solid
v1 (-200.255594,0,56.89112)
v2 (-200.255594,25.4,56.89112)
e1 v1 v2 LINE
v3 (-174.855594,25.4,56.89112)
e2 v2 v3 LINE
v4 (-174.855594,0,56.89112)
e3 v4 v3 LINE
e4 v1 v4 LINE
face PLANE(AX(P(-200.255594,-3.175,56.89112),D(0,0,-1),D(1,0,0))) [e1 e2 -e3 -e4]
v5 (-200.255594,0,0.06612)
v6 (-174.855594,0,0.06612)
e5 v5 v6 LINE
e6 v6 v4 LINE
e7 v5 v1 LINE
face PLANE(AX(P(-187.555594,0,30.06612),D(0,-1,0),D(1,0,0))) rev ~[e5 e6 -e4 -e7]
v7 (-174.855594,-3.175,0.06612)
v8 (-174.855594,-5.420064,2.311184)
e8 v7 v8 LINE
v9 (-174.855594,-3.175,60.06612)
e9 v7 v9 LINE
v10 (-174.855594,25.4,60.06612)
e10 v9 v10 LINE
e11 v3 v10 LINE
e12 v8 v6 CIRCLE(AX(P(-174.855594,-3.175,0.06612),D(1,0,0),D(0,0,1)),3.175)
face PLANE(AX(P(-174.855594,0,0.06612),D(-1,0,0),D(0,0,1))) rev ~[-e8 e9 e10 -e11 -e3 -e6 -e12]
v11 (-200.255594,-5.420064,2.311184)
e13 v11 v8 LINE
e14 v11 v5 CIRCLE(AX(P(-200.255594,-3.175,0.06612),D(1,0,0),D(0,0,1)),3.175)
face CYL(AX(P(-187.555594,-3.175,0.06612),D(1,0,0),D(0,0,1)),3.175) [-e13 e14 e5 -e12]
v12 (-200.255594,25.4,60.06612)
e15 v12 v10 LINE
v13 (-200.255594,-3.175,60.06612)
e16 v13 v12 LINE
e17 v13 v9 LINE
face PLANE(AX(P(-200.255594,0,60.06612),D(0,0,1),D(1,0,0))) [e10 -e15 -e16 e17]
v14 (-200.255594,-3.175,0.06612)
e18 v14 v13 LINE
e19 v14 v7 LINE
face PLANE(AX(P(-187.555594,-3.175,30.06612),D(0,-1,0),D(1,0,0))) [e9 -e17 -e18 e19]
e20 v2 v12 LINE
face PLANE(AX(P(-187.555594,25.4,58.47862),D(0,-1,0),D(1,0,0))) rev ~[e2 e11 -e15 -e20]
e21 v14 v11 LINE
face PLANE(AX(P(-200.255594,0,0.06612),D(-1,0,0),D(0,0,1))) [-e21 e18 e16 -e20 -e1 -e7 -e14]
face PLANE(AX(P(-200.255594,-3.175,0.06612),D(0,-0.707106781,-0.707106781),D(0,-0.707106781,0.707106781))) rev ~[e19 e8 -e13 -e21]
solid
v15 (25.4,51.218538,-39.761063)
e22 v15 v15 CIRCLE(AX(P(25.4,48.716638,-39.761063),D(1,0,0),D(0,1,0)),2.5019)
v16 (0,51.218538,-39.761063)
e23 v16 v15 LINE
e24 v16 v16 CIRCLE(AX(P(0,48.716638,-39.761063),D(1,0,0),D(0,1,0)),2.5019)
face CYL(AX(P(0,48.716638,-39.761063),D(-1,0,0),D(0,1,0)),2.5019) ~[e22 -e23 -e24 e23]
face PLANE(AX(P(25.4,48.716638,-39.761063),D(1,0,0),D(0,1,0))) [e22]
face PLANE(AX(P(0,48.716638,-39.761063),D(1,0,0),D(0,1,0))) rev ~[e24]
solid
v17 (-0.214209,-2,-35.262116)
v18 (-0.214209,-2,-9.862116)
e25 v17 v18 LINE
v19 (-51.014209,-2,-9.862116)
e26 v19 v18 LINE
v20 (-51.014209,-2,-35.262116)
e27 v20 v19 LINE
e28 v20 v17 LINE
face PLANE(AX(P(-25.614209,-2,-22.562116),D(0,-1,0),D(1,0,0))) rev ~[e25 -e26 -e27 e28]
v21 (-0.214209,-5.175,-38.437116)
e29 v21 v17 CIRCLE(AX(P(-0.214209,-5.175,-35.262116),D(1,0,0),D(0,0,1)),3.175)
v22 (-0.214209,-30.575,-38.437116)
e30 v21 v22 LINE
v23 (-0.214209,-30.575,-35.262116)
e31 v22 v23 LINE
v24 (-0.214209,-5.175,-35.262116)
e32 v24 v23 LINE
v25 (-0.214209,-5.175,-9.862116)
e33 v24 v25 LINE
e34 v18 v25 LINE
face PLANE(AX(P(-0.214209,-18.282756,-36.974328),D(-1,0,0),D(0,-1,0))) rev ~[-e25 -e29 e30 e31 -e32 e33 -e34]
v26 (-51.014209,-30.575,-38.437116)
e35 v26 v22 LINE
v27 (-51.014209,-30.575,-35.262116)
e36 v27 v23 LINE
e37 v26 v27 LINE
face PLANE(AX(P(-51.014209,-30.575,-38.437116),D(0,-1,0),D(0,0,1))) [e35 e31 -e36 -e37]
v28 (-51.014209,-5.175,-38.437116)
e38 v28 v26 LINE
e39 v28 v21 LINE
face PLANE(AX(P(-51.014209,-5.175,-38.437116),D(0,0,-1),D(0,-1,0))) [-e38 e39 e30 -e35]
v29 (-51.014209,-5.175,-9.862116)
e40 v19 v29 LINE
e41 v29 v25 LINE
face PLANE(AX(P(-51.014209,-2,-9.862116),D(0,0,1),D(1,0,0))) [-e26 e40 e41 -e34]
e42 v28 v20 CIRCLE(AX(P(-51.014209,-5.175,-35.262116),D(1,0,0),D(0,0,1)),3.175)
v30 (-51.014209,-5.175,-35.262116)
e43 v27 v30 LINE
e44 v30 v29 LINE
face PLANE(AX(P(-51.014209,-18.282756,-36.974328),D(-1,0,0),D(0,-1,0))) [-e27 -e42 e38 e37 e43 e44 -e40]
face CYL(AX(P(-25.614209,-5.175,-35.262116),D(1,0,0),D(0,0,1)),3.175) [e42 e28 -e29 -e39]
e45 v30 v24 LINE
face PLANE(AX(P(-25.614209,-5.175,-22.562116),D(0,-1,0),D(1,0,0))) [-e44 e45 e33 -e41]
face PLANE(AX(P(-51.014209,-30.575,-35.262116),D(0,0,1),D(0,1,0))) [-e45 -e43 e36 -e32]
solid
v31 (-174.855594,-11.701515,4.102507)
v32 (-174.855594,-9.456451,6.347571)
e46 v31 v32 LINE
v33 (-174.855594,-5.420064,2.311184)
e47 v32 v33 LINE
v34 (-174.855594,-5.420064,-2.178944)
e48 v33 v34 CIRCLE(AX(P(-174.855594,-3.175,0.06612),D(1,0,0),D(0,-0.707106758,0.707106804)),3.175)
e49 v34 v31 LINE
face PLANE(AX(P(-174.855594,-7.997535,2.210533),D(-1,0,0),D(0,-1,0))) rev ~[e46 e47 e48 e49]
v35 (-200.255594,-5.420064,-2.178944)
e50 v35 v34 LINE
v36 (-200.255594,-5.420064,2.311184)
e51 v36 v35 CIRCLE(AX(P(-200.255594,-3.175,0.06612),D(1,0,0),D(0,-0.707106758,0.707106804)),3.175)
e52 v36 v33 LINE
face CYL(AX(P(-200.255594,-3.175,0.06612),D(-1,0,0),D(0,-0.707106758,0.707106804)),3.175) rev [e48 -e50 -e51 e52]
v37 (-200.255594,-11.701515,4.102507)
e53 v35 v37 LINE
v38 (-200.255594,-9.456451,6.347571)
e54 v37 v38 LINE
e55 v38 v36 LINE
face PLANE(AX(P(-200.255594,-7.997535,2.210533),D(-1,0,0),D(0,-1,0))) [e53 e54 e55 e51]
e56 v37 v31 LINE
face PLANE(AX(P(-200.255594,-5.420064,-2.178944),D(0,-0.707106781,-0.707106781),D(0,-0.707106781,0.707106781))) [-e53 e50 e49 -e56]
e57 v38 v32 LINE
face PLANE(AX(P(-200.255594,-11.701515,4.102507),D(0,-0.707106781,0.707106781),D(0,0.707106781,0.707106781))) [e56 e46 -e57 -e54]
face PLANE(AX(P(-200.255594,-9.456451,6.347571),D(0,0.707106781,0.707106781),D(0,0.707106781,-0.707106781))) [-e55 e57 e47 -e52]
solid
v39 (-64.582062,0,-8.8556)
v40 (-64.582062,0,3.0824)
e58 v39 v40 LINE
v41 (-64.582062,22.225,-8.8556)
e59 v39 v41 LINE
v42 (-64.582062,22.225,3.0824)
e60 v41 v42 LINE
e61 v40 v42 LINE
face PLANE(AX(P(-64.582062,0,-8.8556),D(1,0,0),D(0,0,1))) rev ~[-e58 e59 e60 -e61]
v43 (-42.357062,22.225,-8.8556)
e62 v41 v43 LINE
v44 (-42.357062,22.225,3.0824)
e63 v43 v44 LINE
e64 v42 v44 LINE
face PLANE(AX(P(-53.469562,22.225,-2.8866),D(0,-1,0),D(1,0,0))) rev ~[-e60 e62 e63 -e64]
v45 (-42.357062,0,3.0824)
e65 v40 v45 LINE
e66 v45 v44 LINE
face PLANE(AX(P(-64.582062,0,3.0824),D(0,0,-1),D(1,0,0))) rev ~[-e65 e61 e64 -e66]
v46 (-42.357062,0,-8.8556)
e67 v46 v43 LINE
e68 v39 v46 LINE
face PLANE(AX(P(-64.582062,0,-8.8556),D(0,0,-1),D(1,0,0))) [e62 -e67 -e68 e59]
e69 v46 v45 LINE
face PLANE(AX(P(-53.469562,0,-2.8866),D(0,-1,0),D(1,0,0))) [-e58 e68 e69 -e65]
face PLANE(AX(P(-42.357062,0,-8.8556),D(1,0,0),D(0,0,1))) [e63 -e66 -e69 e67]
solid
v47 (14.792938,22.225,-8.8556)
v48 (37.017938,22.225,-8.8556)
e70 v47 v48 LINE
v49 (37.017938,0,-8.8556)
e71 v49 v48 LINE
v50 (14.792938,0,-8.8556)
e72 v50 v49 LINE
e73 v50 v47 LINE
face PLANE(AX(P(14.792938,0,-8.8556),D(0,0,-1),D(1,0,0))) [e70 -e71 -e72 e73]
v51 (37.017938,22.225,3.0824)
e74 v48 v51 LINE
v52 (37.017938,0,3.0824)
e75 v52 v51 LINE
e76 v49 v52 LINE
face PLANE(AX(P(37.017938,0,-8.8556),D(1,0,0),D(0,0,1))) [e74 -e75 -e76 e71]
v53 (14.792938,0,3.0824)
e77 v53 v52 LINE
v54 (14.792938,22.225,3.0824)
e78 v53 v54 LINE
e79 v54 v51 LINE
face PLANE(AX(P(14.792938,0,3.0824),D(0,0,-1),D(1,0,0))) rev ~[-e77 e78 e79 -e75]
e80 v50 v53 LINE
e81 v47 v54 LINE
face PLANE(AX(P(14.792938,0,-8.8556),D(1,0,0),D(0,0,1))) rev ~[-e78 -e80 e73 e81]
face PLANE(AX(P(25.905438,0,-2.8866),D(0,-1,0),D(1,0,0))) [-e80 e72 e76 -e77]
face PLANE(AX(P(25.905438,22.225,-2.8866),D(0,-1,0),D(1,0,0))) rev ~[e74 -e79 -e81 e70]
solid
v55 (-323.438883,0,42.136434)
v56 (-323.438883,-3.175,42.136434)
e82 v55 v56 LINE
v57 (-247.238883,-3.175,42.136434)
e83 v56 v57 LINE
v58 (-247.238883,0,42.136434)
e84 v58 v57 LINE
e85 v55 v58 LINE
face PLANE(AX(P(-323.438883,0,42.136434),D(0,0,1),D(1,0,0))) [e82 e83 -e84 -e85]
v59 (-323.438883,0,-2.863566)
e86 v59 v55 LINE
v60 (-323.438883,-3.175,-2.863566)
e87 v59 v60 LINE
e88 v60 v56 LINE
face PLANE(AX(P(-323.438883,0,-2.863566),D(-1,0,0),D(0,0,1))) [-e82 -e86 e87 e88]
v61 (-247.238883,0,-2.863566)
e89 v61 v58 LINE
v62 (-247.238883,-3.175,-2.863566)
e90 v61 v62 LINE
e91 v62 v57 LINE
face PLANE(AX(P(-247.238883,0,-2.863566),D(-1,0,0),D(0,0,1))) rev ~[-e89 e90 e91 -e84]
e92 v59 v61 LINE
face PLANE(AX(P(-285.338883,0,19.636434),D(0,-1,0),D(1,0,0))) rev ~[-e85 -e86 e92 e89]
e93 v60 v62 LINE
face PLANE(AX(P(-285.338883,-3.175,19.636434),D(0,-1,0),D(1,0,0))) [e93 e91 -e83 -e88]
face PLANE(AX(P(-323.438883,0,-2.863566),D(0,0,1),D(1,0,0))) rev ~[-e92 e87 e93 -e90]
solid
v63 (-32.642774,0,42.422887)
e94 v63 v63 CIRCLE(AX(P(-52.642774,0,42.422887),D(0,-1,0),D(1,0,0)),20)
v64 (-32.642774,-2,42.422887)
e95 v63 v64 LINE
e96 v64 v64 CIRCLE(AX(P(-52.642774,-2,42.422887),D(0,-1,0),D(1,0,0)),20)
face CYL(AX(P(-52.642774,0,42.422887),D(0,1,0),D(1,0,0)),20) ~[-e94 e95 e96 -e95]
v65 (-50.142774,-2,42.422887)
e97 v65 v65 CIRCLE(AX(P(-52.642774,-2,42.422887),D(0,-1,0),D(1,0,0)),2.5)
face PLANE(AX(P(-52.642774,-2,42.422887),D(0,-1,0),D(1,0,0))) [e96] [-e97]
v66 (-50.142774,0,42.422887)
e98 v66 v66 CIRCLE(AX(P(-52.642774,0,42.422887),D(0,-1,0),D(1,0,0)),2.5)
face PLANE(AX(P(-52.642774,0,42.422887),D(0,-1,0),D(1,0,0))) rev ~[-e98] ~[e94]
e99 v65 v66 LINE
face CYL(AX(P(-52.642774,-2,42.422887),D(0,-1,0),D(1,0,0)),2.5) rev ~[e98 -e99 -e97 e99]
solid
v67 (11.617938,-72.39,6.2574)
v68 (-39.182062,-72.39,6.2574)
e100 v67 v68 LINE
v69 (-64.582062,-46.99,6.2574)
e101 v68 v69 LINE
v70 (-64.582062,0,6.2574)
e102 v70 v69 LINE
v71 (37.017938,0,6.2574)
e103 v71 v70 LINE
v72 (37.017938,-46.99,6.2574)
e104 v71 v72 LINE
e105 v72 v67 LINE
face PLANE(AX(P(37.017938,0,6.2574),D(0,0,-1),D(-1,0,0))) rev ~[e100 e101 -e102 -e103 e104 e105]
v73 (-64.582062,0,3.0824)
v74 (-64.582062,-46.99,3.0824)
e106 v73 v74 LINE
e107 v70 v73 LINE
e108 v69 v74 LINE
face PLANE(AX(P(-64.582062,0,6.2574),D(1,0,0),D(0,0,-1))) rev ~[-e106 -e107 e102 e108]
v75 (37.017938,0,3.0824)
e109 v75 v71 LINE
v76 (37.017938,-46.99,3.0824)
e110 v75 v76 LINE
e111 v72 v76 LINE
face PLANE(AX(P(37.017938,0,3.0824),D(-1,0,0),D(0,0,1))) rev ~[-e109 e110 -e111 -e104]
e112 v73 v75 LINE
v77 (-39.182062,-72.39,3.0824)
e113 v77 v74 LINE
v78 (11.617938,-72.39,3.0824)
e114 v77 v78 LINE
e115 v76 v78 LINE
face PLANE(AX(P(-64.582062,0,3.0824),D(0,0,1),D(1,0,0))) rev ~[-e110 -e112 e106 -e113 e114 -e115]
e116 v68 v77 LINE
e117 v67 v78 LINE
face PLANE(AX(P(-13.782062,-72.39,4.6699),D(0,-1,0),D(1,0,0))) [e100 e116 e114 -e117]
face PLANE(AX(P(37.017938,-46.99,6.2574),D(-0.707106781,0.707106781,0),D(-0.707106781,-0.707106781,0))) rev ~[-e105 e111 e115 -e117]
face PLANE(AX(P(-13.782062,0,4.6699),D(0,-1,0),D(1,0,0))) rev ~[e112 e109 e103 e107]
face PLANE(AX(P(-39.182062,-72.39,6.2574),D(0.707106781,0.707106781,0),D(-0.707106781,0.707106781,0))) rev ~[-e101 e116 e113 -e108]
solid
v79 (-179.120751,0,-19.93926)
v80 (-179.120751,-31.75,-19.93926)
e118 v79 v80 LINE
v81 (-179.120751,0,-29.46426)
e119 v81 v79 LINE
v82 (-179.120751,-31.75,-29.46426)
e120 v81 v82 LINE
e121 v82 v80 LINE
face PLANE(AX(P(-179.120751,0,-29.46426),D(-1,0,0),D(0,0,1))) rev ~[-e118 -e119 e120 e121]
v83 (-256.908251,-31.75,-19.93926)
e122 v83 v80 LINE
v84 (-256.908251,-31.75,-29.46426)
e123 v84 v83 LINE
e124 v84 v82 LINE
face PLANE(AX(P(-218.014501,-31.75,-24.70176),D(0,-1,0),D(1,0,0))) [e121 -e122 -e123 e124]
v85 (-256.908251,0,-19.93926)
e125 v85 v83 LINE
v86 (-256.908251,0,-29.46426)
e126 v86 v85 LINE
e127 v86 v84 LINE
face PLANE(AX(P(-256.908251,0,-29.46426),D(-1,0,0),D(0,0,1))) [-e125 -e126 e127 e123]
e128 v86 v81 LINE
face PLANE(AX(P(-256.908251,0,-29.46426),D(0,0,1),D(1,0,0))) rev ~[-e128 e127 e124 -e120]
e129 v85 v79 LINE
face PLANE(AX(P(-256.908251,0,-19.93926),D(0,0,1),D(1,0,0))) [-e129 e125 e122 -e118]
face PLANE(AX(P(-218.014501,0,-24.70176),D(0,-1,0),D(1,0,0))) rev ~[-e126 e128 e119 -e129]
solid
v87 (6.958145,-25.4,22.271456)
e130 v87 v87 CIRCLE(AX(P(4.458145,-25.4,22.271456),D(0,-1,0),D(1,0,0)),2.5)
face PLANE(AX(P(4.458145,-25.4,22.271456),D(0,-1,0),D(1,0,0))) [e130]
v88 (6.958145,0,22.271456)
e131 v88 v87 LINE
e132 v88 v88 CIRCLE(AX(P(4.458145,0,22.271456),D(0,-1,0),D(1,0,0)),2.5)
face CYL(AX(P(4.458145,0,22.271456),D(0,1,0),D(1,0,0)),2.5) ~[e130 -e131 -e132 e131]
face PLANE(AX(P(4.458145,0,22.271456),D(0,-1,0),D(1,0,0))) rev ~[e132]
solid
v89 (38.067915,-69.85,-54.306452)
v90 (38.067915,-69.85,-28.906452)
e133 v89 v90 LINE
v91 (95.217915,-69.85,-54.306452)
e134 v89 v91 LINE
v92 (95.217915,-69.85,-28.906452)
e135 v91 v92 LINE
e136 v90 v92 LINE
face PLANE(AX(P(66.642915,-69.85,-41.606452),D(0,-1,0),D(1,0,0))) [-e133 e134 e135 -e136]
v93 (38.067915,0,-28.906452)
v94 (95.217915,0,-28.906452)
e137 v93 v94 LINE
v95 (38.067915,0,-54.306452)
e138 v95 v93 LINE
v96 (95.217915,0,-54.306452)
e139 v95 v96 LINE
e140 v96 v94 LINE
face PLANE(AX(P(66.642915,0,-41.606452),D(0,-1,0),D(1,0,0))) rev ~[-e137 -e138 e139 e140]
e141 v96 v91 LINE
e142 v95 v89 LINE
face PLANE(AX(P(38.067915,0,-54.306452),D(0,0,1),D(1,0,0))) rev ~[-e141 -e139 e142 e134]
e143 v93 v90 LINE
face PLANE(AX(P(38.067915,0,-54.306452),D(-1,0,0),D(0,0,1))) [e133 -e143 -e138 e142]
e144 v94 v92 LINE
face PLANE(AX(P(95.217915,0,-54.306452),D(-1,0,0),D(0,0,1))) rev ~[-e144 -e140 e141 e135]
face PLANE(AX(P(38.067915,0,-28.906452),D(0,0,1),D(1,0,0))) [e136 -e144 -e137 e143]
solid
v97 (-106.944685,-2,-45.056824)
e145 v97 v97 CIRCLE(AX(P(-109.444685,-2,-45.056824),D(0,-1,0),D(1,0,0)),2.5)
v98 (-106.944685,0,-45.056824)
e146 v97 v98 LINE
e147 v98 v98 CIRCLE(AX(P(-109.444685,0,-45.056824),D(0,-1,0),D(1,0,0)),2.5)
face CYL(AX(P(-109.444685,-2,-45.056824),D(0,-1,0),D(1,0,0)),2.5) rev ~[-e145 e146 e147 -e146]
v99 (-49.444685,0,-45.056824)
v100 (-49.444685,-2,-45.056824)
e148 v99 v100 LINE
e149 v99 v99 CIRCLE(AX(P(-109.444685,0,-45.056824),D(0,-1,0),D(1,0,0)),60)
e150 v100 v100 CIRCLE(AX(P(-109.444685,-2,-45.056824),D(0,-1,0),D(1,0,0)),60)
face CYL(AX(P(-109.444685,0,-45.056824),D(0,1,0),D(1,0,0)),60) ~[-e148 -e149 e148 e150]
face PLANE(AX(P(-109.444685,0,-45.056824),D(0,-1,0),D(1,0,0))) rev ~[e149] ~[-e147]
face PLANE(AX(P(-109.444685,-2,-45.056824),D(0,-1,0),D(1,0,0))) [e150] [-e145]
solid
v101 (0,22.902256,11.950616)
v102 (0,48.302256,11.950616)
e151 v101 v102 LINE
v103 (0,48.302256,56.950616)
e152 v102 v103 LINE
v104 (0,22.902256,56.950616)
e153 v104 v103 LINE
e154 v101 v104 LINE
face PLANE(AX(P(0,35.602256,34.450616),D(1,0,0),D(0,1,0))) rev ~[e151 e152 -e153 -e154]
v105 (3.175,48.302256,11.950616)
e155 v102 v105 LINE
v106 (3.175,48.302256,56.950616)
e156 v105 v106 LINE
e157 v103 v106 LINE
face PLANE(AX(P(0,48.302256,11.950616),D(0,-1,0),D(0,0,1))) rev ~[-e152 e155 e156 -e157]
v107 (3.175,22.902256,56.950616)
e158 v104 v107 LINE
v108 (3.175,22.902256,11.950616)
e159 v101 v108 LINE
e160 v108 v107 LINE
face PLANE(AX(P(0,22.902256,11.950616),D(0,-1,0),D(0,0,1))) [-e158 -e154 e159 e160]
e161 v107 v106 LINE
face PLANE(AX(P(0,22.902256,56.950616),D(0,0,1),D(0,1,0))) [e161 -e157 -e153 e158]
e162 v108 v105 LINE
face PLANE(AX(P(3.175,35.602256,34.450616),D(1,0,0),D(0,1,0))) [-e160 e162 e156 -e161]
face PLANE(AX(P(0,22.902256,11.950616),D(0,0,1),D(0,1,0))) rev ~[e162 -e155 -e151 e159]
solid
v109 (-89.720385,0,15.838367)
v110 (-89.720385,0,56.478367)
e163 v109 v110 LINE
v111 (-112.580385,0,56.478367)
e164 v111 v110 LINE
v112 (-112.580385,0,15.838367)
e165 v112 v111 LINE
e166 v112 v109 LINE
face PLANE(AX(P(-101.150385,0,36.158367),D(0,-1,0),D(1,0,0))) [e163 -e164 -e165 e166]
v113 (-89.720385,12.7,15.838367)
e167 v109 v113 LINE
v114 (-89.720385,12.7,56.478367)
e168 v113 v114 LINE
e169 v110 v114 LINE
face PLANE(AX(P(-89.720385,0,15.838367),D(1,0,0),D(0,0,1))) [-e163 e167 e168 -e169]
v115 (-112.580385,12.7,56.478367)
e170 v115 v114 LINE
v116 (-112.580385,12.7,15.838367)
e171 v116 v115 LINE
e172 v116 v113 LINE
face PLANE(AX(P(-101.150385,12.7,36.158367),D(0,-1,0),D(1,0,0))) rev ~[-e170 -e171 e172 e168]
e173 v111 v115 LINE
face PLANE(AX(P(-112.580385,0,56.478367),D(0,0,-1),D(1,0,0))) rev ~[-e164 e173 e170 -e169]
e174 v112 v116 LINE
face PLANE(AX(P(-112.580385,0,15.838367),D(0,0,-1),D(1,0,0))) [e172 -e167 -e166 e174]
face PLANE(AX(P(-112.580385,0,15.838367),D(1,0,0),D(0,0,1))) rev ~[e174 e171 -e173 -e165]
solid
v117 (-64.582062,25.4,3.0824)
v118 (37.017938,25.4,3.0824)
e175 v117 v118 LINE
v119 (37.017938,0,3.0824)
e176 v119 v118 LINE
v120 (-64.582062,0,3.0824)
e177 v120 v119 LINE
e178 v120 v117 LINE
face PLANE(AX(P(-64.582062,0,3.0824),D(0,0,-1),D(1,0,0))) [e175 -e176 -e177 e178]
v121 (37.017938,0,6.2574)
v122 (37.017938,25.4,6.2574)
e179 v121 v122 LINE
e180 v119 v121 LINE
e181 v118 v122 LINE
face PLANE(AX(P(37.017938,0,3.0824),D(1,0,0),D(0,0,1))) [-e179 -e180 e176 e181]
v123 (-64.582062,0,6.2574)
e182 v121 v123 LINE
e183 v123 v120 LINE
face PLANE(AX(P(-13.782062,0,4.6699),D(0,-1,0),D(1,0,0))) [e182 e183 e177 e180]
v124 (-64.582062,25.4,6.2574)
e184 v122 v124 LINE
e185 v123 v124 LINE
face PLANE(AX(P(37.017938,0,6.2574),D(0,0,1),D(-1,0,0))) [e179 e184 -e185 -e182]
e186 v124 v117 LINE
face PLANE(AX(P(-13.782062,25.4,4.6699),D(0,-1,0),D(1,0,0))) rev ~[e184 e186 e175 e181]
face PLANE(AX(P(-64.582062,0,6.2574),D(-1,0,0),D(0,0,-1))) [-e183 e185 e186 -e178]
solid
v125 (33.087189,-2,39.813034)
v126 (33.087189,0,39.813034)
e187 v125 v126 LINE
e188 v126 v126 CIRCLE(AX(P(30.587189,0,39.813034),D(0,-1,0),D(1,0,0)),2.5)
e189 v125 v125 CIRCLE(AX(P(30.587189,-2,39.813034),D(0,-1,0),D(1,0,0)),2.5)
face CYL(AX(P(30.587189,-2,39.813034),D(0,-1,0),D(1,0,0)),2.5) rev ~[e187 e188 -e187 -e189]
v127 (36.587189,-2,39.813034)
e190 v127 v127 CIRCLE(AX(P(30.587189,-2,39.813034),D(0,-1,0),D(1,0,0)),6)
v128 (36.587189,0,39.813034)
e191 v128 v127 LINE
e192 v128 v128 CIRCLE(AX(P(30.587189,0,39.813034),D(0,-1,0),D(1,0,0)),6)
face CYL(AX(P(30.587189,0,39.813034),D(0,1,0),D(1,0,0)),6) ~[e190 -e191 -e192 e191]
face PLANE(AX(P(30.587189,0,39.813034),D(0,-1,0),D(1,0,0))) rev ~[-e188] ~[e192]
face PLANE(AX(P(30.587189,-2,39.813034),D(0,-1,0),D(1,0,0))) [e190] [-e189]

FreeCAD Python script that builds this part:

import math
import FreeCAD as App
import Part
import Sketcher
Q = App.Units.Quantity


def add_polygon(sketch, points):
    """Adds a closed chain of lines whose ends are joined by coincident constraints."""
    first, n = sketch.GeometryCount, len(points)
    for a, b in zip(points, points[1:] + points[:1]):
        sketch.addGeometry(Part.LineSegment(App.Vector(*a, 0), App.Vector(*b, 0)), False)
    for i in range(n):
        sketch.addConstraint(Sketcher.Constraint("Coincident", first + i, 2, first + (i + 1) % n, 1))

doc = App.newDocument("Part")
body = doc.addObject("PartDesign::Body", "Body")

sketch1 = body.newObject("Sketcher::SketchObject", "Sketch")
sketch1.AttachmentSupport = (doc.getObject("XZ_Plane"), [""])
sketch1.MapMode = "FlatFace"
add_polygon(sketch1, [(-65, 3), (-65, -9), (-42, -9), (-42, 3)])
sketch1.addConstraint([
    Sketcher.Constraint("Vertical", 0),
    Sketcher.Constraint("Horizontal", 1),
    Sketcher.Constraint("Vertical", 2),
    Sketcher.Constraint("Horizontal", 3),
    Sketcher.Constraint("DistanceY", 0, 2, 0, 1, Q("0.47 in")),
    Sketcher.Constraint("DistanceX", 1, 1, 1, 2, Q("0.875 in")),
    Sketcher.Constraint("DistanceY", 0, 2, -1, 1, 8.8556),
    Sketcher.Constraint("DistanceX", 0, 2, -1, 1, 64.582062),
])
pad1 = body.newObject("PartDesign::Pad", "Pad")
pad1.Profile = sketch1
pad1.Length = Q("0.875 in")
pad1.Reversed = True
body2 = doc.addObject("PartDesign::Body", "Body001")

sketch2 = body2.newObject("Sketcher::SketchObject", "Sketch001")
sketch2.AttachmentSupport = (doc.getObject("XZ_Plane001"), [""])
sketch2.MapMode = "FlatFace"
add_polygon(sketch2, [(15, 3), (15, -9), (37, -9), (37, 3)])
sketch2.addConstraint([
    Sketcher.Constraint("Vertical", 0),
    Sketcher.Constraint("Horizontal", 1),
    Sketcher.Constraint("Vertical", 2),
    Sketcher.Constraint("Horizontal", 3),
    Sketcher.Constraint("DistanceY", 0, 2, 0, 1, Q("0.47 in")),
    Sketcher.Constraint("DistanceX", 1, 1, 1, 2, Q("0.875 in")),
    Sketcher.Constraint("DistanceY", 0, 2, -1, 1, 8.8556),
    Sketcher.Constraint("DistanceX", -1, 1, 0, 2, 14.792938),
])
pad2 = body2.newObject("PartDesign::Pad", "Pad001")
pad2.Profile = sketch2
pad2.Length = Q("0.875 in")
pad2.Reversed = True
body3 = doc.addObject("PartDesign::Body", "Body002")

sketch3 = body3.newObject("Sketcher::SketchObject", "Sketch002")
sketch3.AttachmentSupport = (doc.getObject("XZ_Plane002"), [""])
sketch3.MapMode = "FlatFace"
add_polygon(sketch3, [(-113, 56), (-113, 16), (-90, 16), (-90, 56)])
sketch3.addConstraint([
    Sketcher.Constraint("Vertical", 0),
    Sketcher.Constraint("Horizontal", 1),
    Sketcher.Constraint("Vertical", 2),
    Sketcher.Constraint("Horizontal", 3),
    Sketcher.Constraint("DistanceX", 1, 1, 1, 2, Q("0.9 in")),
    Sketcher.Constraint("DistanceY", 0, 2, 0, 1, Q("1.6 in")),
    Sketcher.Constraint("DistanceX", 0, 2, -1, 1, 112.580385),
    Sketcher.Constraint("DistanceY", -1, 1, 0, 2, 15.838367),
])
pad3 = body3.newObject("PartDesign::Pad", "Pad002")
pad3.Profile = sketch3
pad3.Length = Q("0.5 in")
pad3.Reversed = True
body4 = doc.addObject("PartDesign::Body", "Body003")

sketch4 = body4.newObject("Sketcher::SketchObject", "Sketch003")
sketch4.AttachmentSupport = (doc.getObject("XZ_Plane003"), [""])
sketch4.MapMode = "FlatFace"
add_polygon(sketch4, [(38, -29), (38, -54), (95, -54), (95, -29)])
sketch4.addConstraint([
    Sketcher.Constraint("Vertical", 0),
    Sketcher.Constraint("Horizontal", 1),
    Sketcher.Constraint("Vertical", 2),
    Sketcher.Constraint("Horizontal", 3),
    Sketcher.Constraint("DistanceY", 0, 2, 0, 1, Q("1 in")),
    Sketcher.Constraint("DistanceX", 1, 1, 1, 2, Q("2.25 in")),
    Sketcher.Constraint("DistanceX", -1, 1, 0, 2, 38.067915),
    Sketcher.Constraint("DistanceY", 0, 2, -1, 1, 54.306452),
])
pad4 = body4.newObject("PartDesign::Pad", "Pad003")
pad4.Profile = sketch4
pad4.Length = Q("2.75 in")
body5 = doc.addObject("PartDesign::Body", "Body004")

sketch5 = body5.newObject("Sketcher::SketchObject", "Sketch004")
sketch5.AttachmentSupport = (doc.getObject("XZ_Plane004"), [""])
sketch5.MapMode = "FlatFace"
add_polygon(sketch5, [(-64.6, 6.3), (-64.6, 3.1), (37, 3.1), (37, 6.3)])
sketch5.addConstraint([
    Sketcher.Constraint("Vertical", 0),
    Sketcher.Constraint("Horizontal", 1),
    Sketcher.Constraint("Vertical", 2),
    Sketcher.Constraint("Horizontal", 3),
    Sketcher.Constraint("DistanceX", 1, 1, 1, 2, Q("4 in")),
    Sketcher.Constraint("DistanceY", 0, 2, 0, 1, Q("0.125 in")),
    Sketcher.Constraint("DistanceY", -1, 1, 0, 2, 3.0824),
    Sketcher.Constraint("DistanceX", 0, 2, -1, 1, 64.582062),
])
pad5 = body5.newObject("PartDesign::Pad", "Pad004")
pad5.Profile = sketch5
pad5.Length = Q("1 in")
pad5.Reversed = True
body6 = doc.addObject("PartDesign::Body", "Body005")

sketch6 = body6.newObject("Sketcher::SketchObject", "Sketch005")
sketch6.AttachmentSupport = (doc.getObject("XZ_Plane005"), [""])
sketch6.MapMode = "FlatFace"
add_polygon(sketch6, [(-64.6, 6.3), (-64.6, 3.1), (37, 3.1), (37, 6.3)])
sketch6.addConstraint([
    Sketcher.Constraint("Vertical", 0),
    Sketcher.Constraint("Horizontal", 1),
    Sketcher.Constraint("Vertical", 2),
    Sketcher.Constraint("Horizontal", 3),
    Sketcher.Constraint("DistanceX", 1, 1, 1, 2, Q("4 in")),
    Sketcher.Constraint("DistanceY", 0, 2, 0, 1, Q("0.125 in")),
    Sketcher.Constraint("DistanceY", -1, 1, 0, 2, 3.0824),
    Sketcher.Constraint("DistanceX", 0, 2, -1, 1, 64.582062),
])
pad6 = body6.newObject("PartDesign::Pad", "Pad005")
pad6.Profile = sketch6
pad6.Length = Q("2.85 in")

sketch7 = body6.newObject("Sketcher::SketchObject", "Sketch006")
sketch7.AttachmentSupport = (doc.getObject("XY_Plane005"), [""])
sketch7.MapMode = "FlatFace"
sketch7.AttachmentOffset = App.Placement(App.Vector(0, 0, 6.2574), App.Rotation())
add_polygon(sketch7, [(-65, -72), (-39, -72), (-65, -47)])
add_polygon(sketch7, [(37, -72), (37, -47), (12, -72)])
sketch7.addConstraint([
    Sketcher.Constraint("Horizontal", 0),
    Sketcher.Constraint("Vertical", 2),
    Sketcher.Constraint("Vertical", 3),
    Sketcher.Constraint("Horizontal", 5),
    Sketcher.Constraint("Perpendicular", 1, 4),
    Sketcher.Constraint("Horizontal", 1, 2, 3, 2),
    Sketcher.Constraint("Horizontal", 2, 2, 4, 2),
    Sketcher.Constraint("Equal", 0, 5),
    Sketcher.Constraint("DistanceX", 0, 1, 0, 2, Q("1 in")),
    Sketcher.Constraint("DistanceX", 0, 2, 3, 2, Q("3 in")),
    Sketcher.Constraint("DistanceY", 0, 2, -1, 1, Q("2.85 in")),
    Sketcher.Constraint("DistanceX", 1, 2, -1, 1, 64.582062),
])
pocket1 = body6.newObject("PartDesign::Pocket", "Pocket")
pocket1.Profile = sketch7
pocket1.Length = Q("1 in")
body7 = doc.addObject("PartDesign::Body", "Body006")

sketch8 = body7.newObject("Sketcher::SketchObject", "Sketch007")
sketch8.AttachmentSupport = (doc.getObject("XZ_Plane006"), [""])
sketch8.MapMode = "FlatFace"
sketch8.addGeometry(Part.Circle(App.Vector(-53, 42, 0), App.Vector(0, 0, 1), 20), False)
sketch8.addConstraint([
    Sketcher.Constraint("Diameter", 0, 40.0),
    Sketcher.Constraint("DistanceX", 0, 3, -1, 1, 52.642774),
    Sketcher.Constraint("DistanceY", -1, 1, 0, 3, 42.422887),
])
pad7 = body7.newObject("PartDesign::Pad", "Pad006")
pad7.Profile = sketch8
pad7.Length = 2

sketch9 = body7.newObject("Sketcher::SketchObject", "Sketch008")
sketch9.AttachmentSupport = (doc.getObject("XZ_Plane006"), [""])
sketch9.MapMode = "FlatFace"
sketch9.AttachmentOffset = App.Placement(App.Vector(0, 0, 2), App.Rotation())
sketch9.addGeometry(Part.Circle(App.Vector(-52.6, 42.4, 0), App.Vector(0, 0, 1), 2.5), False)
sketch9.addConstraint([
    Sketcher.Constraint("Diameter", 0, 5.0),
    Sketcher.Constraint("DistanceX", 0, 3, -1, 1, 52.642774),
    Sketcher.Constraint("DistanceY", -1, 1, 0, 3, 42.422887),
])
pocket2 = body7.newObject("PartDesign::Pocket", "Pocket001")
pocket2.Profile = sketch9
pocket2.Length = Q("1 in")
body8 = doc.addObject("PartDesign::Body", "Body007")

sketch10 = body8.newObject("Sketcher::SketchObject", "Sketch009")
sketch10.AttachmentSupport = (doc.getObject("XZ_Plane007"), [""])
sketch10.MapMode = "FlatFace"
sketch10.addGeometry(Part.Circle(App.Vector(31, 40, 0), App.Vector(0, 0, 1), 6), False)
sketch10.addConstraint([
    Sketcher.Constraint("Diameter", 0, 12.0),
    Sketcher.Constraint("DistanceX", -1, 1, 0, 3, 30.587189),
    Sketcher.Constraint("DistanceY", -1, 1, 0, 3, 39.813034),
])
pad8 = body8.newObject("PartDesign::Pad", "Pad007")
pad8.Profile = sketch10
pad8.Length = 2

sketch11 = body8.newObject("Sketcher::SketchObject", "Sketch010")
sketch11.AttachmentSupport = (doc.getObject("XZ_Plane007"), [""])
sketch11.MapMode = "FlatFace"
sketch11.AttachmentOffset = App.Placement(App.Vector(0, 0, 2), App.Rotation())
sketch11.addGeometry(Part.Circle(App.Vector(30.6, 39.8, 0), App.Vector(0, 0, 1), 2.5), False)
sketch11.addConstraint([
    Sketcher.Constraint("Diameter", 0, 5.0),
    Sketcher.Constraint("DistanceX", -1, 1, 0, 3, 30.587189),
    Sketcher.Constraint("DistanceY", -1, 1, 0, 3, 39.813034),
])
pocket3 = body8.newObject("PartDesign::Pocket", "Pocket002")
pocket3.Profile = sketch11
pocket3.Length = Q("1 in")
body9 = doc.addObject("PartDesign::Body", "Body008")

sketch12 = body9.newObject("Sketcher::SketchObject", "Sketch011")
sketch12.AttachmentSupport = (doc.getObject("XZ_Plane008"), [""])
sketch12.MapMode = "FlatFace"
sketch12.AttachmentOffset = App.Placement(App.Vector(0, 0, 2), App.Rotation())
add_polygon(sketch12, [(-51, -10), (-51, -35), (0, -35), (0, -10)])
sketch12.addConstraint([
    Sketcher.Constraint("Vertical", 0),
    Sketcher.Constraint("Horizontal", 1),
    Sketcher.Constraint("Vertical", 2),
    Sketcher.Constraint("Horizontal", 3),
    Sketcher.Constraint("DistanceX", 1, 1, 1, 2, Q("2 in")),
    Sketcher.Constraint("DistanceY", 0, 2, 0, 1, Q("1 in")),
    Sketcher.Constraint("DistanceX", 0, 2, -1, 1, 51.014209),
    Sketcher.Constraint("DistanceY", 0, 2, -1, 1, 35.262116),
])
pad9 = body9.newObject("PartDesign::Pad", "Pad008")
pad9.Profile = sketch12
pad9.Length = Q("0.125 in")

sketch13 = body9.newObject("Sketcher::SketchObject", "Sketch012")
sketch13.AttachmentSupport = (doc.getObject("XZ_Plane008"), [""])
sketch13.MapMode = "FlatFace"
sketch13.AttachmentOffset = App.Placement(App.Vector(0, 0, 5.175), App.Rotation())
add_polygon(sketch13, [(-51, -32.1), (-51, -35.3), (-0.2, -35.3), (-0.2, -32.1)])
sketch13.addGeometry(Part.LineSegment(App.Vector(-51, -35.3, 0), App.Vector(-0.2, -35.3, 0)), True)
sketch13.addConstraint([
    Sketcher.Constraint("Vertical", 0),
    Sketcher.Constraint("Horizontal", 1),
    Sketcher.Constraint("Vertical", 2),
    Sketcher.Constraint("Horizontal", 3),
    Sketcher.Constraint("Horizontal", 4),
    Sketcher.Constraint("Coincident", 4, 1, 0, 2),
    Sketcher.Constraint("Vertical", 2, 2, 4, 2),
    Sketcher.Constraint("DistanceX", 1, 1, 1, 2, Q("2 in")),
    Sketcher.Constraint("DistanceY", 0, 2, 0, 1, Q("0.125 in")),
    Sketcher.Constraint("DistanceX", 0, 2, -1, 1, 51.014209),
    Sketcher.Constraint("DistanceY", 0, 2, -1, 1, 35.262116),
])
revolution = body9.newObject("PartDesign::Revolution", "Revolution")
revolution.Profile = sketch13
revolution.ReferenceAxis = (sketch13, ["Axis0"])
revolution.Angle = 360

sketch14 = body9.newObject("Sketcher::SketchObject", "Sketch013")
sketch14.AttachmentSupport = (doc.getObject("YZ_Plane008"), [""])
sketch14.MapMode = "FlatFace"
sketch14.AttachmentOffset = App.Placement(App.Vector(0, 0, -51.014209), App.Rotation())
sketch14.addGeometry([
    Part.ArcOfCircle(Part.Circle(App.Vector(-5.2, -35.3, 0), App.Vector(0, 0, 1), 3.2), math.radians(90), math.radians(180)),
    Part.LineSegment(App.Vector(-5.2, -32.1, 0), App.Vector(-5.2, -35.3, 0)),
    Part.LineSegment(App.Vector(-5.2, -35.3, 0), App.Vector(-8.3, -35.3, 0)),
], False)
sketch14.addConstraint([
    Sketcher.Constraint("Coincident", 0, 1, 1, 1),
    Sketcher.Constraint("Coincident", 1, 2, 2, 1),
    Sketcher.Constraint("Coincident", 2, 2, 0, 2),
    Sketcher.Constraint("Vertical", 1),
    Sketcher.Constraint("Horizontal", 2),
    Sketcher.Constraint("Coincident", 1, 2, 0, 3),
    Sketcher.Constraint("Radius", 0, Q("0.125 in")),
    Sketcher.Constraint("DistanceX", 0, 3, -1, 1, 5.175),
    Sketcher.Constraint("DistanceY", 0, 3, -1, 1, 35.262116),
])
pocket4 = body9.newObject("PartDesign::Pocket", "Pocket003")
pocket4.Profile = sketch14
pocket4.Length = Q("2 in")
pocket4.Reversed = True

sketch15 = body9.newObject("Sketcher::SketchObject", "Sketch014")
sketch15.AttachmentSupport = (doc.getObject("YZ_Plane008"), [""])
sketch15.MapMode = "FlatFace"
sketch15.AttachmentOffset = App.Placement(App.Vector(0, 0, -51.014209), App.Rotation())
sketch15.addGeometry([
    Part.ArcOfCircle(Part.Circle(App.Vector(-5.2, -35.3, 0), App.Vector(0, 0, 1), 3.2), math.radians(180), math.radians(270)),
    Part.LineSegment(App.Vector(-5.2, -38.4, 0), App.Vector(-30.6, -38.4, 0)),
    Part.LineSegment(App.Vector(-30.6, -38.4, 0), App.Vector(-30.6, -35.3, 0)),
    Part.LineSegment(App.Vector(-30.6, -35.3, 0), App.Vector(-8.3, -35.3, 0)),
], False)
sketch15.addConstraint([
    Sketcher.Constraint("Tangent", 0, 2, 1, 1),
    Sketcher.Constraint("Coincident", 1, 2, 2, 1),
    Sketcher.Constraint("Coincident", 2, 2, 3, 1),
    Sketcher.Constraint("Coincident", 3, 2, 0, 1),
    Sketcher.Constraint("Horizontal", 1),
    Sketcher.Constraint("Vertical", 2),
    Sketcher.Constraint("Horizontal", 3),
    Sketcher.Constraint("Horizontal", 0, 3, 2, 2),
    Sketcher.Constraint("DistanceX", 1, 2, 1, 1, Q("1 in")),
    Sketcher.Constraint("Radius", 0, Q("0.1249999 in")),
    Sketcher.Constraint("DistanceX", 0, 3, -1, 1, 5.175002),
    Sketcher.Constraint("DistanceY", 0, 3, -1, 1, 35.262118),
])
pad10 = body9.newObject("PartDesign::Pad", "Pad009")
pad10.Profile = sketch15
pad10.Length = Q("2 in")
body10 = doc.addObject("PartDesign::Body", "Body009")

sketch16 = body10.newObject("Sketcher::SketchObject", "Sketch015")
sketch16.AttachmentSupport = (doc.getObject("XZ_Plane009"), [""])
sketch16.MapMode = "FlatFace"
sketch16.addGeometry(Part.Circle(App.Vector(-109, -45, 0), App.Vector(0, 0, 1), 60), False)
sketch16.addConstraint([
    Sketcher.Constraint("Diameter", 0, 120.0),
    Sketcher.Constraint("DistanceX", 0, 3, -1, 1, 109.444685),
    Sketcher.Constraint("DistanceY", 0, 3, -1, 1, 45.056824),
])
pad11 = body10.newObject("PartDesign::Pad", "Pad010")
pad11.Profile = sketch16
pad11.Length = 2

sketch17 = body10.newObject("Sketcher::SketchObject", "Sketch016")
sketch17.AttachmentSupport = (doc.getObject("XZ_Plane009"), [""])
sketch17.MapMode = "FlatFace"
sketch17.AttachmentOffset = App.Placement(App.Vector(0, 0, 2), App.Rotation())
sketch17.addGeometry(Part.Circle(App.Vector(-109.4, -45.1, 0), App.Vector(0, 0, 1), 2.5), False)
sketch17.addConstraint([
    Sketcher.Constraint("Diameter", 0, 5.0),
    Sketcher.Constraint("DistanceX", 0, 3, -1, 1, 109.444685),
    Sketcher.Constraint("DistanceY", 0, 3, -1, 1, 45.056824),
])
pocket5 = body10.newObject("PartDesign::Pocket", "Pocket004")
pocket5.Profile = sketch17
pocket5.Length = Q("1 in")
body11 = doc.addObject("PartDesign::Body", "Body010")

sketch18 = body11.newObject("Sketcher::SketchObject", "Sketch017")
sketch18.AttachmentSupport = (doc.getObject("XZ_Plane010"), [""])
sketch18.MapMode = "FlatFace"
sketch18.addGeometry(Part.Circle(App.Vector(4.5, 22.3, 0), App.Vector(0, 0, 1), 2.5), False)
sketch18.addConstraint([
    Sketcher.Constraint("Diameter", 0, 5.0),
    Sketcher.Constraint("DistanceX", -1, 1, 0, 3, 4.458145),
    Sketcher.Constraint("DistanceY", -1, 1, 0, 3, 22.271456),
])
pad12 = body11.newObject("PartDesign::Pad", "Pad011")
pad12.Profile = sketch18
pad12.Length = Q("1 in")
body12 = doc.addObject("PartDesign::Body", "Body011")

sketch19 = body12.newObject("Sketcher::SketchObject", "Sketch018")
sketch19.AttachmentSupport = (doc.getObject("XZ_Plane011"), [""])
sketch19.MapMode = "FlatFace"
add_polygon(sketch19, [(-257, -20), (-257, -29), (-179, -29), (-179, -20)])
sketch19.addConstraint([
    Sketcher.Constraint("Vertical", 0),
    Sketcher.Constraint("Horizontal", 1),
    Sketcher.Constraint("Vertical", 2),
    Sketcher.Constraint("Horizontal", 3),
    Sketcher.Constraint("DistanceX", 1, 1, 1, 2, Q("3.0625 in")),
    Sketcher.Constraint("DistanceY", 0, 2, 0, 1, Q("0.375 in")),
    Sketcher.Constraint("DistanceX", 0, 2, -1, 1, 256.908251),
    Sketcher.Constraint("DistanceY", 0, 2, -1, 1, 29.46426),
])
pad13 = body12.newObject("PartDesign::Pad", "Pad012")
pad13.Profile = sketch19
pad13.Length = Q("1.25 in")
body13 = doc.addObject("PartDesign::Body", "Body012")

sketch20 = body13.newObject("Sketcher::SketchObject", "Sketch019")
sketch20.AttachmentSupport = (doc.getObject("XZ_Plane012"), [""])
sketch20.MapMode = "FlatFace"
add_polygon(sketch20, [(-200, 60), (-200, 0), (-175, 0), (-175, 60)])
sketch20.addConstraint([
    Sketcher.Constraint("Vertical", 0),
    Sketcher.Constraint("Horizontal", 1),
    Sketcher.Constraint("Vertical", 2),
    Sketcher.Constraint("Horizontal", 3),
    Sketcher.Constraint("DistanceX", 1, 1, 1, 2, Q("1 in")),
    Sketcher.Constraint("DistanceY", 0, 2, 0, 1, 60.0),
    Sketcher.Constraint("DistanceY", -1, 1, 0, 2, 0.06612),
    Sketcher.Constraint("DistanceX", 0, 2, -1, 1, 200.255594),
])
pad14 = body13.newObject("PartDesign::Pad", "Pad013")
pad14.Profile = sketch20
pad14.Length = Q("0.125 in")

sketch21 = body13.newObject("Sketcher::SketchObject", "Sketch020")
sketch21.AttachmentSupport = (doc.getObject("XZ_Plane012"), [""])
sketch21.MapMode = "FlatFace"
sketch21.AttachmentOffset = App.Placement(App.Vector(0, 0, 0.125 * 25.4), App.Rotation())
add_polygon(sketch21, [(-200.3, 3.2), (-200.3, 0.1), (-174.9, 0.1), (-174.9, 3.2)])
sketch21.addGeometry(Part.LineSegment(App.Vector(-200.3, 0.1, 0), App.Vector(-174.9, 0.1, 0)), True)
sketch21.addConstraint([
    Sketcher.Constraint("Vertical", 0),
    Sketcher.Constraint("Horizontal", 1),
    Sketcher.Constraint("Vertical", 2),
    Sketcher.Constraint("Horizontal", 3),
    Sketcher.Constraint("Horizontal", 4),
    Sketcher.Constraint("Coincident", 4, 1, 0, 2),
    Sketcher.Constraint("Vertical", 2, 2, 4, 2),
    Sketcher.Constraint("DistanceX", 1, 1, 1, 2, Q("1 in")),
    Sketcher.Constraint("DistanceY", 0, 2, 0, 1, Q("0.125 in")),
    Sketcher.Constraint("DistanceY", -1, 1, 0, 2, 0.06612),
    Sketcher.Constraint("DistanceX", 0, 2, -1, 1, 200.255594),
])
revolution2 = body13.newObject("PartDesign::Revolution", "Revolution001")
revolution2.Profile = sketch21
revolution2.ReferenceAxis = (sketch21, ["Axis0"])
revolution2.Angle = 360

sketch22 = body13.newObject("Sketcher::SketchObject", "Sketch021")
sketch22.AttachmentSupport = (doc.getObject("YZ_Plane012"), [""])
sketch22.MapMode = "FlatFace"
sketch22.AttachmentOffset = App.Placement(App.Vector(0, 0, -200.255594), App.Rotation())
sketch22.addGeometry([
    Part.ArcOfCircle(Part.Circle(App.Vector(-3.2, 0.1, 0), App.Vector(0, 0, 1), 3.2), math.radians(90), math.radians(135)),
    Part.LineSegment(App.Vector(-3.2, 3.2, 0), App.Vector(-3.2, 0.1, 0)),
    Part.LineSegment(App.Vector(-3.2, 0.1, 0), App.Vector(-5.4, 2.3, 0)),
], False)
sketch22.addConstraint([
    Sketcher.Constraint("Coincident", 0, 1, 1, 1),
    Sketcher.Constraint("Coincident", 1, 2, 2, 1),
    Sketcher.Constraint("Coincident", 2, 2, 0, 2),
    Sketcher.Constraint("Vertical", 1),
    Sketcher.Constraint("Coincident", 1, 2, 0, 3),
    Sketcher.Constraint("Angle", 2, Q("135 deg")),
    Sketcher.Constraint("Radius", 0, Q("0.1250002 in")),
    Sketcher.Constraint("DistanceX", 0, 3, -1, 1, Q("0.1249999 in")),
    Sketcher.Constraint("DistanceY", -1, 1, 0, 1, 3.24112),
])
pocket6 = body13.newObject("PartDesign::Pocket", "Pocket005")
pocket6.Profile = sketch22
pocket6.Length = Q("1 in")
pocket6.Reversed = True

sketch23 = body13.newObject("Sketcher::SketchObject", "Sketch022")
sketch23.AttachmentSupport = (doc.getObject("XZ_Plane012"), [""])
sketch23.MapMode = "FlatFace"
sketch23.AttachmentOffset = App.Placement(App.Vector(0, 0, 0.125 * 25.4), App.Rotation())
add_polygon(sketch23, [(-200.3, 60.1), (-200.3, 56.9), (-174.9, 56.9), (-174.9, 60.1)])
sketch23.addConstraint([
    Sketcher.Constraint("Vertical", 0),
    Sketcher.Constraint("Horizontal", 1),
    Sketcher.Constraint("Vertical", 2),
    Sketcher.Constraint("Horizontal", 3),
    Sketcher.Constraint("DistanceX", 1, 1, 1, 2, Q("1 in")),
    Sketcher.Constraint("DistanceY", 0, 2, 0, 1, Q("0.125 in")),
    Sketcher.Constraint("DistanceY", -1, 1, 0, 2, 56.89112),
    Sketcher.Constraint("DistanceX", 0, 2, -1, 1, 200.255594),
])
pad15 = body13.newObject("PartDesign::Pad", "Pad014")
pad15.Profile = sketch23
pad15.Length = Q("1.125 in")
pad15.Reversed = True
body14 = doc.addObject("PartDesign::Body", "Body013")

sketch24 = body14.newObject("Sketcher::SketchObject", "Sketch023")
sketch24.AttachmentSupport = (doc.getObject("YZ_Plane013"), [""])
sketch24.MapMode = "FlatFace"
sketch24.AttachmentOffset = App.Placement(App.Vector(0, 0, -200.255594), App.Rotation())
sketch24.addGeometry([
    Part.LineSegment(App.Vector(-9.5, 6.3, 0), App.Vector(-5.4, 2.3, 0)),
    Part.ArcOfCircle(Part.Circle(App.Vector(-3.2, 0.1, 0), App.Vector(0, 0, 1), 3.2), math.radians(135), math.radians(225)),
    Part.LineSegment(App.Vector(-5.4, -2.2, 0), App.Vector(-11.7, 4.1, 0)),
    Part.LineSegment(App.Vector(-11.7, 4.1, 0), App.Vector(-9.5, 6.3, 0)),
], False)
sketch24.addConstraint([
    Sketcher.Constraint("Coincident", 0, 2, 1, 1),
    Sketcher.Constraint("Tangent", 1, 2, 2, 1),
    Sketcher.Constraint("Coincident", 2, 2, 3, 1),
    Sketcher.Constraint("Coincident", 3, 2, 0, 1),
    Sketcher.Constraint("Parallel", 0, 2),
    Sketcher.Constraint("Perpendicular", 2, 3),
    Sketcher.Constraint("Vertical", 0, 2, 1, 2),
    Sketcher.Constraint("Angle", 0, Q("-45 deg")),
    Sketcher.Constraint("Radius", 1, Q("0.125 in")),
    Sketcher.Constraint("DistanceX", 1, 3, -1, 1, Q("0.125 in")),
    Sketcher.Constraint("DistanceY", -1, 1, 1, 3, 0.06612),
    Sketcher.Constraint("DistanceX", 3, 2, -1, 1, 9.456451),
])
pad16 = body14.newObject("PartDesign::Pad", "Pad015")
pad16.Profile = sketch24
pad16.Length = Q("1 in")
body15 = doc.addObject("PartDesign::Body", "Body014")

sketch25 = body15.newObject("Sketcher::SketchObject", "Sketch024")
sketch25.AttachmentSupport = (doc.getObject("XZ_Plane014"), [""])
sketch25.MapMode = "FlatFace"
add_polygon(sketch25, [(-323, 42), (-323, -3), (-247, -3), (-247, 42)])
sketch25.addConstraint([
    Sketcher.Constraint("Vertical", 0),
    Sketcher.Constraint("Horizontal", 1),
    Sketcher.Constraint("Vertical", 2),
    Sketcher.Constraint("Horizontal", 3),
    Sketcher.Constraint("DistanceX", 1, 1, 1, 2, Q("3 in")),
    Sketcher.Constraint("DistanceY", 0, 2, 0, 1, 45.0),
    Sketcher.Constraint("DistanceX", 0, 2, -1, 1, 323.438883),
    Sketcher.Constraint("DistanceY", 0, 2, -1, 1, 2.863566),
])
pad17 = body15.newObject("PartDesign::Pad", "Pad016")
pad17.Profile = sketch25
pad17.Length = Q("0.125 in")
body16 = doc.addObject("PartDesign::Body", "Body015")

sketch26 = body16.newObject("Sketcher::SketchObject", "Sketch025")
sketch26.AttachmentSupport = (doc.getObject("YZ_Plane015"), [""])
sketch26.MapMode = "FlatFace"
add_polygon(sketch26, [(23, 57), (23, 12), (48, 12), (48, 57)])
sketch26.addConstraint([
    Sketcher.Constraint("Vertical", 0),
    Sketcher.Constraint("Horizontal", 1),
    Sketcher.Constraint("Vertical", 2),
    Sketcher.Constraint("Horizontal", 3),
    Sketcher.Constraint("DistanceX", 1, 1, 1, 2, Q("1 in")),
    Sketcher.Constraint("DistanceY", 0, 2, 0, 1, 45.0),
    Sketcher.Constraint("DistanceX", -1, 1, 0, 2, 22.902256),
    Sketcher.Constraint("DistanceY", -1, 1, 0, 2, 11.950616),
])
pad18 = body16.newObject("PartDesign::Pad", "Pad017")
pad18.Profile = sketch26
pad18.Length = Q("0.125 in")
body17 = doc.addObject("PartDesign::Body", "Body016")

sketch27 = body17.newObject("Sketcher::SketchObject", "Sketch026")
sketch27.AttachmentSupport = (doc.getObject("YZ_Plane016"), [""])
sketch27.MapMode = "FlatFace"
sketch27.addGeometry(Part.Circle(App.Vector(48.7, -39.8, 0), App.Vector(0, 0, 1), 2.5), False)
sketch27.addConstraint([
    Sketcher.Constraint("Diameter", 0, Q("0.197 in")),
    Sketcher.Constraint("DistanceX", -1, 1, 0, 3, 48.716638),
    Sketcher.Constraint("DistanceY", 0, 3, -1, 1, 39.761063),
])
pad19 = body17.newObject("PartDesign::Pad", "Pad018")
pad19.Profile = sketch27
pad19.Length = Q("1 in")

doc.recompute()
